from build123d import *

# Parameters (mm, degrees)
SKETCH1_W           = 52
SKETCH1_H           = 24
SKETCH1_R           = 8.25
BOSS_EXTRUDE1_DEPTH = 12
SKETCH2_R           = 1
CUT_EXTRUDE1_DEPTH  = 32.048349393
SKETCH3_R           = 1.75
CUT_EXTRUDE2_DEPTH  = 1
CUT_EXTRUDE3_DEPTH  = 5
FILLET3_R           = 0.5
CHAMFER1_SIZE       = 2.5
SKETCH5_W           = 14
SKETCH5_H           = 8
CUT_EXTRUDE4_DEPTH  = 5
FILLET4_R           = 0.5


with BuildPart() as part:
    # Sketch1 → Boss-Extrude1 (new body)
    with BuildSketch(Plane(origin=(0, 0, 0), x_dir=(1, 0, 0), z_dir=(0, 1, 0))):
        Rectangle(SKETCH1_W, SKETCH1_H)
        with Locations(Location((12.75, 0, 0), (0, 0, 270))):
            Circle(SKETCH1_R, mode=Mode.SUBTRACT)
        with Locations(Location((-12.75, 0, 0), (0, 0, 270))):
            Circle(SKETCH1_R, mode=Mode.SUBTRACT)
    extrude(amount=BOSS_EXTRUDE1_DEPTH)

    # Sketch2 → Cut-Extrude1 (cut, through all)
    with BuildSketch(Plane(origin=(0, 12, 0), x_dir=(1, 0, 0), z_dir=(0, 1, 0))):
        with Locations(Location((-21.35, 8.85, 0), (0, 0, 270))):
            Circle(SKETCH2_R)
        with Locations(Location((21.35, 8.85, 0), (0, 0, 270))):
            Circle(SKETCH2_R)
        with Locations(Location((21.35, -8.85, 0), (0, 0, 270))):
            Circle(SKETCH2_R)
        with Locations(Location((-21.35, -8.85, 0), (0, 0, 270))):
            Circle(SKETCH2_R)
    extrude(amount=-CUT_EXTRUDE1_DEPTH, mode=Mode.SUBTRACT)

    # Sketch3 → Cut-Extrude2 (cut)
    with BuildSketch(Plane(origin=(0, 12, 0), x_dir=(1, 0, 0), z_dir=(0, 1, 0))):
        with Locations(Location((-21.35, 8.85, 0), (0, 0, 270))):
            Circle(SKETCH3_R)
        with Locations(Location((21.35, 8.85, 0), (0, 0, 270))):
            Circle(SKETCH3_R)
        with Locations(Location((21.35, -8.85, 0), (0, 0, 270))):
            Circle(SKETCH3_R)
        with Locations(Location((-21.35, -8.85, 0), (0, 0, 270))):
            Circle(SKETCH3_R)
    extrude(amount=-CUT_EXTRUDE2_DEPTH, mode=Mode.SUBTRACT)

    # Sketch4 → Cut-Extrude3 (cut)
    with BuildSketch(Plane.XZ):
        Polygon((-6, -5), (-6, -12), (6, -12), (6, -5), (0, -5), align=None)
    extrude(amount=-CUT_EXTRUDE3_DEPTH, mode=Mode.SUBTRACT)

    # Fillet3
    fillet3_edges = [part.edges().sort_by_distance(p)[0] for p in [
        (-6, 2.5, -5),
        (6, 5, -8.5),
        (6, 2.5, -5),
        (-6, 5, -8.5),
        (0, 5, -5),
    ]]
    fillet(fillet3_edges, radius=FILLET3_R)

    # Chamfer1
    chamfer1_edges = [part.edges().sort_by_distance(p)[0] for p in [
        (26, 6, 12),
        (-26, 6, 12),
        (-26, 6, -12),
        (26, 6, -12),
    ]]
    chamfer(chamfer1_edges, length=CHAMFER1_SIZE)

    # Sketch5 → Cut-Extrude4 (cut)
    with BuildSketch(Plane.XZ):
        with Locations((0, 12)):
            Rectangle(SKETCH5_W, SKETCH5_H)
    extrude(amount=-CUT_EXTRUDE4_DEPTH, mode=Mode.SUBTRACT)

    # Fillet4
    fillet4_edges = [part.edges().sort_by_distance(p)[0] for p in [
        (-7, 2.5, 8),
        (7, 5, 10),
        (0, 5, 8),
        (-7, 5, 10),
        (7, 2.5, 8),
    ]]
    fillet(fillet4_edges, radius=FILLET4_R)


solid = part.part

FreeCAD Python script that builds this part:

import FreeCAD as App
import Part
import Sketcher
Q = App.Units.Quantity


def edges_at(feature, points):
    """Names of the edges that pass closest to the given points."""
    edges = feature.Shape.Edges
    near = lambda p: min(range(len(edges)), key=lambda i: edges[i].distToShape(Part.Vertex(*p))[0])
    return sorted({f"Edge{near(p) + 1}" for p in points})

doc = App.newDocument("Part")
body = doc.addObject("PartDesign::Body", "Body")

# Sketch on XZ plane
sketch1 = doc.addObject("Sketcher::SketchObject", "Sketch")
body.addObject(sketch1)
sketch1.AttachmentSupport = (doc.XZ_Plane, [""])
sketch1.MapMode = "FlatFace"
sketch1.addGeometry([
    Part.LineSegment(App.Vector(-26, -12, 0), App.Vector(-26, 12, 0)),  # 0
    Part.LineSegment(App.Vector(-26, 12, 0), App.Vector(26, 12, 0)),  # 1
    Part.LineSegment(App.Vector(26, 12, 0), App.Vector(26, -12, 0)),  # 2
    Part.LineSegment(App.Vector(26, -12, 0), App.Vector(-26, -12, 0)),  # 3
    Part.Circle(App.Vector(-12.75, 0, 0), App.Vector(0, 0, 1), 8.25),  # 4
    Part.Circle(App.Vector(12.75, 0, 0), App.Vector(0, 0, 1), 8.25),  # 5
], False)
sketch1.addConstraint([
    Sketcher.Constraint("Coincident", 0, 2, 1, 1),
    Sketcher.Constraint("Coincident", 1, 2, 2, 1),
    Sketcher.Constraint("Coincident", 2, 2, 3, 1),
    Sketcher.Constraint("Coincident", 3, 2, 0, 1),
    Sketcher.Constraint("Vertical", 0),
    Sketcher.Constraint("Horizontal", 1),
    Sketcher.Constraint("Vertical", 2),
    Sketcher.Constraint("Horizontal", 3),
    Sketcher.Constraint("Equal", 4, 5),
    Sketcher.Constraint("Symmetric", 4, 3, 5, 3, -1, 1),
    Sketcher.Constraint("Symmetric", 0, 2, 2, 2, -1, 1),
    Sketcher.Constraint("PointOnObject", 4, 3, -1),
    Sketcher.Constraint("Diameter", 4, Q("16.5 mm")),
    Sketcher.Constraint("DistanceX", 1, 1, 1, 2, Q("52 mm")),
    Sketcher.Constraint("DistanceY", 0, 1, 0, 2, Q("24 mm")),
    Sketcher.Constraint("DistanceX", 4, 3, 5, 3, Q("25.5 mm")),
])
pad1 = doc.addObject("PartDesign::Pad", "Pad")
body.addObject(pad1)
pad1.Profile = sketch1
pad1.Length = 12
pad1.Reversed = True

# Sketch on XZ plane
sketch2 = doc.addObject("Sketcher::SketchObject", "Sketch001")
body.addObject(sketch2)
sketch2.AttachmentSupport = (doc.XZ_Plane, [""])
sketch2.MapMode = "FlatFace"
sketch2.AttachmentOffset = App.Placement(App.Vector(0, 0, -12), App.Rotation())
sketch2.addGeometry([
    Part.Circle(App.Vector(-21.35, -8.85, 0), App.Vector(0, 0, 1), 1),
    Part.Circle(App.Vector(21.35, -8.85, 0), App.Vector(0, 0, 1), 1),
    Part.Circle(App.Vector(21.35, 8.85, 0), App.Vector(0, 0, 1), 1),
    Part.Circle(App.Vector(-21.35, 8.85, 0), App.Vector(0, 0, 1), 1),
], False)
sketch2.addConstraint([
    Sketcher.Constraint("Equal", 0, 1),
    Sketcher.Constraint("Equal", 1, 2),
    Sketcher.Constraint("Equal", 2, 3),
    Sketcher.Constraint("Symmetric", 0, 3, 2, 3, -1, 1),
    Sketcher.Constraint("Symmetric", 1, 3, 3, 3, -1, 1),
    Sketcher.Constraint("Symmetric", 0, 3, 1, 3, -2),
    Sketcher.Constraint("Diameter", 0, Q("2 mm")),
    Sketcher.Constraint("DistanceX", 0, 3, 1, 3, Q("42.7 mm")),
    Sketcher.Constraint("DistanceY", 1, 3, 2, 3, Q("17.7 mm")),
])
pocket1 = doc.addObject("PartDesign::Pocket", "Pocket")
body.addObject(pocket1)
pocket1.Profile = sketch2
pocket1.Type = "ThroughAll"
pocket1.Reversed = True

# Sketch on XZ plane
sketch3 = doc.addObject("Sketcher::SketchObject", "Sketch002")
body.addObject(sketch3)
sketch3.AttachmentSupport = (doc.XZ_Plane, [""])
sketch3.MapMode = "FlatFace"
sketch3.AttachmentOffset = App.Placement(App.Vector(0, 0, -12), App.Rotation())
sketch3.addGeometry([
    Part.Circle(App.Vector(-21.35, -8.85, 0), App.Vector(0, 0, 1), 1.75),
    Part.Circle(App.Vector(21.35, -8.85, 0), App.Vector(0, 0, 1), 1.75),
    Part.Circle(App.Vector(21.35, 8.85, 0), App.Vector(0, 0, 1), 1.75),
    Part.Circle(App.Vector(-21.35, 8.85, 0), App.Vector(0, 0, 1), 1.75),
], False)
sketch3.addConstraint([
    Sketcher.Constraint("Equal", 0, 1),
    Sketcher.Constraint("Equal", 1, 2),
    Sketcher.Constraint("Equal", 2, 3),
    Sketcher.Constraint("Symmetric", 0, 3, 2, 3, -1, 1),
    Sketcher.Constraint("Symmetric", 1, 3, 3, 3, -1, 1),
    Sketcher.Constraint("Symmetric", 0, 3, 1, 3, -2),
    Sketcher.Constraint("Diameter", 0, Q("3.5 mm")),
    Sketcher.Constraint("DistanceX", 0, 3, 1, 3, Q("42.7 mm")),
    Sketcher.Constraint("DistanceY", 1, 3, 2, 3, Q("17.7 mm")),
])
pocket2 = doc.addObject("PartDesign::Pocket", "Pocket001")
body.addObject(pocket2)
pocket2.Profile = sketch3
pocket2.Length = 1
pocket2.Reversed = True

# Sketch on XZ plane
sketch4 = doc.addObject("Sketcher::SketchObject", "Sketch003")
body.addObject(sketch4)
sketch4.AttachmentSupport = (doc.XZ_Plane, [""])
sketch4.MapMode = "FlatFace"
sketch4.addGeometry([
    Part.LineSegment(App.Vector(-6, -5, 0), App.Vector(-6, -12, 0)),
    Part.LineSegment(App.Vector(-6, -12, 0), App.Vector(6, -12, 0)),
    Part.LineSegment(App.Vector(6, -12, 0), App.Vector(6, -5, 0)),
    Part.LineSegment(App.Vector(6, -5, 0), App.Vector(-6, -5, 0)),
], False)
sketch4.addConstraint([
    Sketcher.Constraint("Coincident", 0, 2, 1, 1),
    Sketcher.Constraint("Coincident", 1, 2, 2, 1),
    Sketcher.Constraint("Coincident", 2, 2, 3, 1),
    Sketcher.Constraint("Coincident", 3, 2, 0, 1),
    Sketcher.Constraint("Vertical", 0),
    Sketcher.Constraint("Horizontal", 1),
    Sketcher.Constraint("Vertical", 2),
    Sketcher.Constraint("Horizontal", 3),
    Sketcher.Constraint("DistanceX", 1, 1, 1, 2, Q("12 mm")),
    Sketcher.Constraint("DistanceY", 0, 2, 0, 1, Q("7 mm")),
    Sketcher.Constraint("DistanceX", 0, 2, -1, 1, Q("6 mm")),
    Sketcher.Constraint("DistanceY", 0, 2, -1, 1, Q("12 mm")),
])
pocket3 = doc.addObject("PartDesign::Pocket", "Pocket002")
body.addObject(pocket3)
pocket3.Profile = sketch4
pocket3.Length = 5
doc.recompute()

fillet = doc.addObject("PartDesign::Fillet", "Fillet")
body.addObject(fillet)
fillet.Base = (pocket3, edges_at(pocket3, [
    (-6, 2.5, -5),
    (6, 5, -8.5),
    (6, 2.5, -5),
    (-6, 5, -8.5),
    (0, 5, -5),
]))
fillet.Radius = 0.5
doc.recompute()

chamfer = doc.addObject("PartDesign::Chamfer", "Chamfer")
body.addObject(chamfer)
chamfer.Base = (fillet, edges_at(fillet, [
    (26, 6, 12),
    (-26, 6, 12),
    (-26, 6, -12),
    (26, 6, -12),
]))
chamfer.Size = 2.5

# Sketch on XZ plane
sketch5 = doc.addObject("Sketcher::SketchObject", "Sketch004")
body.addObject(sketch5)
sketch5.AttachmentSupport = (doc.XZ_Plane, [""])
sketch5.MapMode = "FlatFace"
sketch5.addGeometry([
    Part.LineSegment(App.Vector(-7, 16, 0), App.Vector(-7, 8, 0)),
    Part.LineSegment(App.Vector(-7, 8, 0), App.Vector(7, 8, 0)),
    Part.LineSegment(App.Vector(7, 8, 0), App.Vector(7, 16, 0)),
    Part.LineSegment(App.Vector(7, 16, 0), App.Vector(-7, 16, 0)),
], False)
sketch5.addConstraint([
    Sketcher.Constraint("Coincident", 0, 2, 1, 1),
    Sketcher.Constraint("Coincident", 1, 2, 2, 1),
    Sketcher.Constraint("Coincident", 2, 2, 3, 1),
    Sketcher.Constraint("Coincident", 3, 2, 0, 1),
    Sketcher.Constraint("Vertical", 0),
    Sketcher.Constraint("Horizontal", 1),
    Sketcher.Constraint("Vertical", 2),
    Sketcher.Constraint("Horizontal", 3),
    Sketcher.Constraint("DistanceX", 1, 1, 1, 2, Q("14 mm")),
    Sketcher.Constraint("DistanceY", 0, 2, 0, 1, Q("8 mm")),
    Sketcher.Constraint("DistanceX", 0, 2, -1, 1, Q("7 mm")),
    Sketcher.Constraint("DistanceY", -1, 1, 0, 2, Q("8 mm")),
])
pocket4 = doc.addObject("PartDesign::Pocket", "Pocket003")
body.addObject(pocket4)
pocket4.Profile = sketch5
pocket4.Length = 5
doc.recompute()

fillet2 = doc.addObject("PartDesign::Fillet", "Fillet001")
body.addObject(fillet2)
fillet2.Base = (pocket4, edges_at(pocket4, [
    (-7, 2.5, 8),
    (7, 5, 10),
    (0, 5, 8),
    (-7, 5, 10),
    (7, 2.5, 8),
]))
fillet2.Radius = 0.5

doc.recompute()
